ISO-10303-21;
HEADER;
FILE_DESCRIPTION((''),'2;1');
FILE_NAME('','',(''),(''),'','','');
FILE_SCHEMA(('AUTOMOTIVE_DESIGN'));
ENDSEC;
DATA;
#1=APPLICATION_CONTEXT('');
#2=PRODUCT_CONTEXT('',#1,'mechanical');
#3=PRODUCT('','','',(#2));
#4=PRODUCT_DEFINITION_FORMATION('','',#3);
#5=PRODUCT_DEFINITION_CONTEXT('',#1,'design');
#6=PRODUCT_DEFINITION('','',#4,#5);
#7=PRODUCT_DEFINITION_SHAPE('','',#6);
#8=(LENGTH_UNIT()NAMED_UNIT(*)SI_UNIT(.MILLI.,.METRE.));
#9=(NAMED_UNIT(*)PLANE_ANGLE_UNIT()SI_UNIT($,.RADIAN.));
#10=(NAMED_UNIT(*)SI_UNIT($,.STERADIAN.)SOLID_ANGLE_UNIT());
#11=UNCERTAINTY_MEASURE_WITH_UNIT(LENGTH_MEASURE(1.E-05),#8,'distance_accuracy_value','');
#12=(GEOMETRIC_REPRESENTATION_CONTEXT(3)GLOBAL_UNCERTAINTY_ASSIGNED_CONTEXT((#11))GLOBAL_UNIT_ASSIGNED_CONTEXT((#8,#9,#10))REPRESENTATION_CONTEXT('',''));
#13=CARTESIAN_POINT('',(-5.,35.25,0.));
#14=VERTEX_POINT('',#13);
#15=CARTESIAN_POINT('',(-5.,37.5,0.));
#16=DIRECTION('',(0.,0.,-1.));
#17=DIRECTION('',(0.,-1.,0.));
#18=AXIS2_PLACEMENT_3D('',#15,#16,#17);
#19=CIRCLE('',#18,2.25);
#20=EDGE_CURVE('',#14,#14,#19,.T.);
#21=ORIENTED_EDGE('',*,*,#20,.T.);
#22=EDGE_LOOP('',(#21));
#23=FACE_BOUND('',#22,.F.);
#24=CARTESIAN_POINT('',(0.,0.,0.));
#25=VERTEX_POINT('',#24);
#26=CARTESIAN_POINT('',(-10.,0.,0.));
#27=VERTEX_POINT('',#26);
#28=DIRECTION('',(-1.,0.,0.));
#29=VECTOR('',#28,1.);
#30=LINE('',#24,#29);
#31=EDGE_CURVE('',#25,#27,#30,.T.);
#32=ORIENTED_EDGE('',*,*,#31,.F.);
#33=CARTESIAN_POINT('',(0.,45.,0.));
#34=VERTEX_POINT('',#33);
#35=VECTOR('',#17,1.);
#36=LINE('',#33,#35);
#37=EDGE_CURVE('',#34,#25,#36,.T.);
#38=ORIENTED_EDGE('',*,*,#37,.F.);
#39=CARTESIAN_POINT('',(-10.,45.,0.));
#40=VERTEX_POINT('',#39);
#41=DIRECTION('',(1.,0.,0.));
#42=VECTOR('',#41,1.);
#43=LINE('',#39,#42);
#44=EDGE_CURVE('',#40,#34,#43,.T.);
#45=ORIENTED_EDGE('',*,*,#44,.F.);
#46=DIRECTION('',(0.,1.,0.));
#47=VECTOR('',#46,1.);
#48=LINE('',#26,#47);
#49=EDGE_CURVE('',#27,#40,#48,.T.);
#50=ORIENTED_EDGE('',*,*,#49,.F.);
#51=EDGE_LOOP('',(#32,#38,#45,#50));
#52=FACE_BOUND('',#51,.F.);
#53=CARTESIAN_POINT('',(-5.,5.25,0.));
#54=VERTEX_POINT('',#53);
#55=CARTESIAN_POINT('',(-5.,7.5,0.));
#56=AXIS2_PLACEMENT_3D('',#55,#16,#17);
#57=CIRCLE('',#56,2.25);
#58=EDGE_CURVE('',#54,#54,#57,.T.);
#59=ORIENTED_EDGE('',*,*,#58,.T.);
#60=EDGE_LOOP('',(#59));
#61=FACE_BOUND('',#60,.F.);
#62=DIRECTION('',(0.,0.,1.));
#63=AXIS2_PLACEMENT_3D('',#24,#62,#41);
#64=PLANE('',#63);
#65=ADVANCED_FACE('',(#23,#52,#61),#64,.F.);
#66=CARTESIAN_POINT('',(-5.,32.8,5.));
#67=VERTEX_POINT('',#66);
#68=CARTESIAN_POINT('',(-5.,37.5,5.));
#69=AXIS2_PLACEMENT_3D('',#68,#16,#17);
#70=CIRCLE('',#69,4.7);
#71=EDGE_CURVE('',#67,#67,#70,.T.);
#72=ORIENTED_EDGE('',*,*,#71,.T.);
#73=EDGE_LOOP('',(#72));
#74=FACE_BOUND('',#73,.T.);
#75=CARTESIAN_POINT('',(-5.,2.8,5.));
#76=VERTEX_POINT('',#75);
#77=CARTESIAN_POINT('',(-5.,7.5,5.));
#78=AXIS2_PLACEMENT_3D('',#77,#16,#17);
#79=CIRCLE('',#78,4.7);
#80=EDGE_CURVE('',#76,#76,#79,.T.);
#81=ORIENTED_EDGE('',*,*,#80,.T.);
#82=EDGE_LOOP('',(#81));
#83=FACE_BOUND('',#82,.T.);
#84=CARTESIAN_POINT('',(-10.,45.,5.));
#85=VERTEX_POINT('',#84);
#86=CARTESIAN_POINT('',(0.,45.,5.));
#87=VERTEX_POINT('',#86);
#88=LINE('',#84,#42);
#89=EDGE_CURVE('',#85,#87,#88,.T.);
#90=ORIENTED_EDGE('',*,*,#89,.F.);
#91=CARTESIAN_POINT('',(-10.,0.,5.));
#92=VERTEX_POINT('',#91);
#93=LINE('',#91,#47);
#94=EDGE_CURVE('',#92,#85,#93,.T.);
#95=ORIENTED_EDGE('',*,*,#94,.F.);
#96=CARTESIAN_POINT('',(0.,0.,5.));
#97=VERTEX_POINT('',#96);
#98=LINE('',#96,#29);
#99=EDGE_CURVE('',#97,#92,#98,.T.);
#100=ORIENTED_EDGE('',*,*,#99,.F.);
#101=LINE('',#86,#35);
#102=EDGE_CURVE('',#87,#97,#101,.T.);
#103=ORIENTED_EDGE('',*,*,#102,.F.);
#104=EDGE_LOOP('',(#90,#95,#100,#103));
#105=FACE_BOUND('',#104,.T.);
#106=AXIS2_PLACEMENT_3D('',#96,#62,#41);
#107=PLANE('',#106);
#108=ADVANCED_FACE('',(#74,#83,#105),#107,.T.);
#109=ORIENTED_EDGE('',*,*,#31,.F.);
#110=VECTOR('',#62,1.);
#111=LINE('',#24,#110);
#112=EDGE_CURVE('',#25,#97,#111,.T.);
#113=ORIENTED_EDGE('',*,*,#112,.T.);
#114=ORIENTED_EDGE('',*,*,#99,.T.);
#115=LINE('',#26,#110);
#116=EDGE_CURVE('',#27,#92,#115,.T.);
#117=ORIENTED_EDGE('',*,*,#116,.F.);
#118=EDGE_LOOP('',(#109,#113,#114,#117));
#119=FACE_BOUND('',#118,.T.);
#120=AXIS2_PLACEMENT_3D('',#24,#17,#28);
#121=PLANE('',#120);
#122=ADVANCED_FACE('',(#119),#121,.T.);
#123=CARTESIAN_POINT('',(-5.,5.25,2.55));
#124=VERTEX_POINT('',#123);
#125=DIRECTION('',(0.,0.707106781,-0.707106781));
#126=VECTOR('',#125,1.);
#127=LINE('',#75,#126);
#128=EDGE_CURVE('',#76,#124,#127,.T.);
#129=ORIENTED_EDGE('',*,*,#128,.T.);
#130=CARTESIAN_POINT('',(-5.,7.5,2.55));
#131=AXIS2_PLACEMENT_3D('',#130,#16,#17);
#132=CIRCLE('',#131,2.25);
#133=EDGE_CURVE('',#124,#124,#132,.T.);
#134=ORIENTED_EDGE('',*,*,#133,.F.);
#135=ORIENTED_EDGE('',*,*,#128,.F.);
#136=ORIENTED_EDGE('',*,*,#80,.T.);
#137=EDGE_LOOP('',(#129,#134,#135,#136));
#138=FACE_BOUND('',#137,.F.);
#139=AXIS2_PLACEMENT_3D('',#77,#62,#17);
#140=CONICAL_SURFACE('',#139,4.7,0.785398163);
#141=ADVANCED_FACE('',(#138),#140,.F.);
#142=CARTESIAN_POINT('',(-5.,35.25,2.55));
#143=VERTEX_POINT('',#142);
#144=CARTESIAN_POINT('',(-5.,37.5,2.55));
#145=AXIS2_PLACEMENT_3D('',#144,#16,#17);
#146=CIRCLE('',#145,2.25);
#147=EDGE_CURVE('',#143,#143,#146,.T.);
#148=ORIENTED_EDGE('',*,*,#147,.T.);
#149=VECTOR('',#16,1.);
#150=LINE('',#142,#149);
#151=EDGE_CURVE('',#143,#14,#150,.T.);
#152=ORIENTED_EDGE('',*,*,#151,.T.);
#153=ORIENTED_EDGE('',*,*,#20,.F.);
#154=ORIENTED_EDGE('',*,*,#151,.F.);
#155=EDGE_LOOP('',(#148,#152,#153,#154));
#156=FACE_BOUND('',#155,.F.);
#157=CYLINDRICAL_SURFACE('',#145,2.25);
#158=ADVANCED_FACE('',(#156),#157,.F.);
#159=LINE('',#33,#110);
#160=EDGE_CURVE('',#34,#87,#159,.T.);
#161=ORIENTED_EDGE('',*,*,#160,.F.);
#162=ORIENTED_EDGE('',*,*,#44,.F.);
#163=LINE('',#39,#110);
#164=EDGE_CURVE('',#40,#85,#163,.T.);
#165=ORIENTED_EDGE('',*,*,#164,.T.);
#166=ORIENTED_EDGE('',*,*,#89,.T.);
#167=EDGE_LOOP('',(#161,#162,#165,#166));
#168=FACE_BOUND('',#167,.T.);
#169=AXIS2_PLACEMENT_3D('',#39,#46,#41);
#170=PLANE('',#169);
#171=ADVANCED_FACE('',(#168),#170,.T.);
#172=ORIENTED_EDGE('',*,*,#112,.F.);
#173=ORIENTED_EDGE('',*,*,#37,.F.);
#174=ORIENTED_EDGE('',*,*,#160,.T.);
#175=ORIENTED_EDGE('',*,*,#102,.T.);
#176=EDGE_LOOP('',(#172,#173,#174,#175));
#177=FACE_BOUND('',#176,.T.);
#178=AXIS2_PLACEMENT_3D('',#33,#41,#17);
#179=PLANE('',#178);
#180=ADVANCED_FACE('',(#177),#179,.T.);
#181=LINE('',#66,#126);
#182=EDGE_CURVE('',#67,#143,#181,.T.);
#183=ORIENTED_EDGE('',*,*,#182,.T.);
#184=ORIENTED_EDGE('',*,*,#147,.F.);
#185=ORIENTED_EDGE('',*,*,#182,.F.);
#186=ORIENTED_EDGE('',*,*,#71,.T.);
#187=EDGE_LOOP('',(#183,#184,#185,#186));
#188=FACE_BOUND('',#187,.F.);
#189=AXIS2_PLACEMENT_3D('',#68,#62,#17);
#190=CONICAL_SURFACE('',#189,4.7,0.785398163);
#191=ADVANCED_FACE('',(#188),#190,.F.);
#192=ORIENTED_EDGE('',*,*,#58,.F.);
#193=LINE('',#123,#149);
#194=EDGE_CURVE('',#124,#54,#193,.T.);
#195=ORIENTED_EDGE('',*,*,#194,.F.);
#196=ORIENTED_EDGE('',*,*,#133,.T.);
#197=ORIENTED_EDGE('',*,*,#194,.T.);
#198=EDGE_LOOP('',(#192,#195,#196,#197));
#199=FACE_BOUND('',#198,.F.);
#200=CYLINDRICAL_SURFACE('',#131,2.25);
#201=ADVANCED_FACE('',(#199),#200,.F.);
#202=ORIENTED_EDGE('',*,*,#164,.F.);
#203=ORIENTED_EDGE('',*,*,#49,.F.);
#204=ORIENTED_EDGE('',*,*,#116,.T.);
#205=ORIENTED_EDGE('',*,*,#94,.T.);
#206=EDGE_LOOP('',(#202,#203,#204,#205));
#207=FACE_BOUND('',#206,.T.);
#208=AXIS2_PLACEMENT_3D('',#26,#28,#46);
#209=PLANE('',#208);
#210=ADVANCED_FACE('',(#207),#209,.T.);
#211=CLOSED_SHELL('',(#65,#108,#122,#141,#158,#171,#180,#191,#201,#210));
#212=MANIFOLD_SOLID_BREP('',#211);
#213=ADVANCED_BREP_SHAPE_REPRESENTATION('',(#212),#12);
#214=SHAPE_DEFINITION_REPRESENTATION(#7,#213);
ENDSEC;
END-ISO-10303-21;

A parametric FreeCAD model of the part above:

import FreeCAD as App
import Part
import Sketcher

V = App.Vector
Q = App.Units.Quantity

doc = App.newDocument("Part")
params = doc.addObject("Spreadsheet::Sheet", "Params")
for row, (alias, value) in enumerate([
    ("sketch1_width", "10 mm"),
    ("sketch1_height", "45 mm"),
    ("pad1_length", "5 mm"),
    ("sketch2_diameter", "4.5 mm"),
    ("hole_diameter", "4.5 mm"),
    ("hole_csink_diameter", "9.4 mm"),
], start=1):
    params.set(f"A{row}", alias)
    params.set(f"B{row}", "=" + value)
    params.setAlias(f"B{row}", alias)

body = doc.addObject("PartDesign::Body", "Body")

# Sketch on XY plane
sketch1 = doc.addObject("Sketcher::SketchObject", "Sketch")
body.addObject(sketch1)
sketch1.AttachmentSupport = (doc.XY_Plane, [""])
sketch1.MapMode = "FlatFace"
sketch1.addGeometry([
    Part.LineSegment(V(-10, 0, 0), V(0, 0, 0)),
    Part.LineSegment(V(0, 0, 0), V(0, 45, 0)),
    Part.LineSegment(V(0, 45, 0), V(-10, 45, 0)),
    Part.LineSegment(V(-10, 45, 0), V(-10, 0, 0)),
], False)
sketch1.addConstraint([
    Sketcher.Constraint("Coincident", 0, 2, 1, 1),
    Sketcher.Constraint("Coincident", 1, 2, 2, 1),
    Sketcher.Constraint("Coincident", 2, 2, 3, 1),
    Sketcher.Constraint("Coincident", 3, 2, 0, 1),
    Sketcher.Constraint("Horizontal", 0),
    Sketcher.Constraint("Vertical", 1),
    Sketcher.Constraint("Horizontal", 2),
    Sketcher.Constraint("Vertical", 3),
    Sketcher.Constraint("Coincident", 0, 2, -1, 1),
    Sketcher.Constraint("DistanceX", 0, 1, 0, 2, Q("10 mm")),
    Sketcher.Constraint("DistanceY", 1, 1, 1, 2, Q("45 mm")),
])
sketch1.setExpression("Constraints[9]", "Params.sketch1_width")
sketch1.setExpression("Constraints[10]", "Params.sketch1_height")
pad1 = doc.addObject("PartDesign::Pad", "Pad")
body.addObject(pad1)
pad1.Profile = sketch1
pad1.setExpression("Length", "Params.pad1_length")

# Sketch on XY plane
sketch2 = doc.addObject("Sketcher::SketchObject", "Sketch001")
body.addObject(sketch2)
sketch2.AttachmentSupport = (doc.XY_Plane, [""])
sketch2.MapMode = "FlatFace"
sketch2.AttachmentOffset = App.Placement(V(0, 0, 5), App.Rotation())
sketch2.addGeometry([
    Part.Circle(V(-5, 37.5, 0), V(0, 0, 1), 2.2),
    Part.Circle(V(-5, 7.5, 0), V(0, 0, 1), 2.2),
], False)
sketch2.addConstraint([
    Sketcher.Constraint("Equal", 0, 1),
    Sketcher.Constraint("Vertical", 0, 3, 1, 3),
    Sketcher.Constraint("Diameter", 0, Q("4.5 mm")),
    Sketcher.Constraint("DistanceX", 0, 3, -1, 1, Q("5 mm")),
    Sketcher.Constraint("DistanceY", 1, 3, 0, 3, Q("30 mm")),
    Sketcher.Constraint("DistanceY", -1, 1, 0, 3, Q("37.5 mm")),
])
sketch2.setExpression("Constraints[2]", "Params.sketch2_diameter")
doc.recompute()
hole = doc.addObject("PartDesign::Hole", "Hole")
body.addObject(hole)
hole.Profile = sketch2
hole.ThreadType = "None"
hole.setExpression("Diameter", "Params.hole_diameter")
hole.DepthType = "ThroughAll"
hole.HoleCutType = "Countersink"
hole.setExpression("HoleCutDiameter", "Params.hole_csink_diameter")
hole.HoleCutCountersinkAngle = 90

doc.recompute()
